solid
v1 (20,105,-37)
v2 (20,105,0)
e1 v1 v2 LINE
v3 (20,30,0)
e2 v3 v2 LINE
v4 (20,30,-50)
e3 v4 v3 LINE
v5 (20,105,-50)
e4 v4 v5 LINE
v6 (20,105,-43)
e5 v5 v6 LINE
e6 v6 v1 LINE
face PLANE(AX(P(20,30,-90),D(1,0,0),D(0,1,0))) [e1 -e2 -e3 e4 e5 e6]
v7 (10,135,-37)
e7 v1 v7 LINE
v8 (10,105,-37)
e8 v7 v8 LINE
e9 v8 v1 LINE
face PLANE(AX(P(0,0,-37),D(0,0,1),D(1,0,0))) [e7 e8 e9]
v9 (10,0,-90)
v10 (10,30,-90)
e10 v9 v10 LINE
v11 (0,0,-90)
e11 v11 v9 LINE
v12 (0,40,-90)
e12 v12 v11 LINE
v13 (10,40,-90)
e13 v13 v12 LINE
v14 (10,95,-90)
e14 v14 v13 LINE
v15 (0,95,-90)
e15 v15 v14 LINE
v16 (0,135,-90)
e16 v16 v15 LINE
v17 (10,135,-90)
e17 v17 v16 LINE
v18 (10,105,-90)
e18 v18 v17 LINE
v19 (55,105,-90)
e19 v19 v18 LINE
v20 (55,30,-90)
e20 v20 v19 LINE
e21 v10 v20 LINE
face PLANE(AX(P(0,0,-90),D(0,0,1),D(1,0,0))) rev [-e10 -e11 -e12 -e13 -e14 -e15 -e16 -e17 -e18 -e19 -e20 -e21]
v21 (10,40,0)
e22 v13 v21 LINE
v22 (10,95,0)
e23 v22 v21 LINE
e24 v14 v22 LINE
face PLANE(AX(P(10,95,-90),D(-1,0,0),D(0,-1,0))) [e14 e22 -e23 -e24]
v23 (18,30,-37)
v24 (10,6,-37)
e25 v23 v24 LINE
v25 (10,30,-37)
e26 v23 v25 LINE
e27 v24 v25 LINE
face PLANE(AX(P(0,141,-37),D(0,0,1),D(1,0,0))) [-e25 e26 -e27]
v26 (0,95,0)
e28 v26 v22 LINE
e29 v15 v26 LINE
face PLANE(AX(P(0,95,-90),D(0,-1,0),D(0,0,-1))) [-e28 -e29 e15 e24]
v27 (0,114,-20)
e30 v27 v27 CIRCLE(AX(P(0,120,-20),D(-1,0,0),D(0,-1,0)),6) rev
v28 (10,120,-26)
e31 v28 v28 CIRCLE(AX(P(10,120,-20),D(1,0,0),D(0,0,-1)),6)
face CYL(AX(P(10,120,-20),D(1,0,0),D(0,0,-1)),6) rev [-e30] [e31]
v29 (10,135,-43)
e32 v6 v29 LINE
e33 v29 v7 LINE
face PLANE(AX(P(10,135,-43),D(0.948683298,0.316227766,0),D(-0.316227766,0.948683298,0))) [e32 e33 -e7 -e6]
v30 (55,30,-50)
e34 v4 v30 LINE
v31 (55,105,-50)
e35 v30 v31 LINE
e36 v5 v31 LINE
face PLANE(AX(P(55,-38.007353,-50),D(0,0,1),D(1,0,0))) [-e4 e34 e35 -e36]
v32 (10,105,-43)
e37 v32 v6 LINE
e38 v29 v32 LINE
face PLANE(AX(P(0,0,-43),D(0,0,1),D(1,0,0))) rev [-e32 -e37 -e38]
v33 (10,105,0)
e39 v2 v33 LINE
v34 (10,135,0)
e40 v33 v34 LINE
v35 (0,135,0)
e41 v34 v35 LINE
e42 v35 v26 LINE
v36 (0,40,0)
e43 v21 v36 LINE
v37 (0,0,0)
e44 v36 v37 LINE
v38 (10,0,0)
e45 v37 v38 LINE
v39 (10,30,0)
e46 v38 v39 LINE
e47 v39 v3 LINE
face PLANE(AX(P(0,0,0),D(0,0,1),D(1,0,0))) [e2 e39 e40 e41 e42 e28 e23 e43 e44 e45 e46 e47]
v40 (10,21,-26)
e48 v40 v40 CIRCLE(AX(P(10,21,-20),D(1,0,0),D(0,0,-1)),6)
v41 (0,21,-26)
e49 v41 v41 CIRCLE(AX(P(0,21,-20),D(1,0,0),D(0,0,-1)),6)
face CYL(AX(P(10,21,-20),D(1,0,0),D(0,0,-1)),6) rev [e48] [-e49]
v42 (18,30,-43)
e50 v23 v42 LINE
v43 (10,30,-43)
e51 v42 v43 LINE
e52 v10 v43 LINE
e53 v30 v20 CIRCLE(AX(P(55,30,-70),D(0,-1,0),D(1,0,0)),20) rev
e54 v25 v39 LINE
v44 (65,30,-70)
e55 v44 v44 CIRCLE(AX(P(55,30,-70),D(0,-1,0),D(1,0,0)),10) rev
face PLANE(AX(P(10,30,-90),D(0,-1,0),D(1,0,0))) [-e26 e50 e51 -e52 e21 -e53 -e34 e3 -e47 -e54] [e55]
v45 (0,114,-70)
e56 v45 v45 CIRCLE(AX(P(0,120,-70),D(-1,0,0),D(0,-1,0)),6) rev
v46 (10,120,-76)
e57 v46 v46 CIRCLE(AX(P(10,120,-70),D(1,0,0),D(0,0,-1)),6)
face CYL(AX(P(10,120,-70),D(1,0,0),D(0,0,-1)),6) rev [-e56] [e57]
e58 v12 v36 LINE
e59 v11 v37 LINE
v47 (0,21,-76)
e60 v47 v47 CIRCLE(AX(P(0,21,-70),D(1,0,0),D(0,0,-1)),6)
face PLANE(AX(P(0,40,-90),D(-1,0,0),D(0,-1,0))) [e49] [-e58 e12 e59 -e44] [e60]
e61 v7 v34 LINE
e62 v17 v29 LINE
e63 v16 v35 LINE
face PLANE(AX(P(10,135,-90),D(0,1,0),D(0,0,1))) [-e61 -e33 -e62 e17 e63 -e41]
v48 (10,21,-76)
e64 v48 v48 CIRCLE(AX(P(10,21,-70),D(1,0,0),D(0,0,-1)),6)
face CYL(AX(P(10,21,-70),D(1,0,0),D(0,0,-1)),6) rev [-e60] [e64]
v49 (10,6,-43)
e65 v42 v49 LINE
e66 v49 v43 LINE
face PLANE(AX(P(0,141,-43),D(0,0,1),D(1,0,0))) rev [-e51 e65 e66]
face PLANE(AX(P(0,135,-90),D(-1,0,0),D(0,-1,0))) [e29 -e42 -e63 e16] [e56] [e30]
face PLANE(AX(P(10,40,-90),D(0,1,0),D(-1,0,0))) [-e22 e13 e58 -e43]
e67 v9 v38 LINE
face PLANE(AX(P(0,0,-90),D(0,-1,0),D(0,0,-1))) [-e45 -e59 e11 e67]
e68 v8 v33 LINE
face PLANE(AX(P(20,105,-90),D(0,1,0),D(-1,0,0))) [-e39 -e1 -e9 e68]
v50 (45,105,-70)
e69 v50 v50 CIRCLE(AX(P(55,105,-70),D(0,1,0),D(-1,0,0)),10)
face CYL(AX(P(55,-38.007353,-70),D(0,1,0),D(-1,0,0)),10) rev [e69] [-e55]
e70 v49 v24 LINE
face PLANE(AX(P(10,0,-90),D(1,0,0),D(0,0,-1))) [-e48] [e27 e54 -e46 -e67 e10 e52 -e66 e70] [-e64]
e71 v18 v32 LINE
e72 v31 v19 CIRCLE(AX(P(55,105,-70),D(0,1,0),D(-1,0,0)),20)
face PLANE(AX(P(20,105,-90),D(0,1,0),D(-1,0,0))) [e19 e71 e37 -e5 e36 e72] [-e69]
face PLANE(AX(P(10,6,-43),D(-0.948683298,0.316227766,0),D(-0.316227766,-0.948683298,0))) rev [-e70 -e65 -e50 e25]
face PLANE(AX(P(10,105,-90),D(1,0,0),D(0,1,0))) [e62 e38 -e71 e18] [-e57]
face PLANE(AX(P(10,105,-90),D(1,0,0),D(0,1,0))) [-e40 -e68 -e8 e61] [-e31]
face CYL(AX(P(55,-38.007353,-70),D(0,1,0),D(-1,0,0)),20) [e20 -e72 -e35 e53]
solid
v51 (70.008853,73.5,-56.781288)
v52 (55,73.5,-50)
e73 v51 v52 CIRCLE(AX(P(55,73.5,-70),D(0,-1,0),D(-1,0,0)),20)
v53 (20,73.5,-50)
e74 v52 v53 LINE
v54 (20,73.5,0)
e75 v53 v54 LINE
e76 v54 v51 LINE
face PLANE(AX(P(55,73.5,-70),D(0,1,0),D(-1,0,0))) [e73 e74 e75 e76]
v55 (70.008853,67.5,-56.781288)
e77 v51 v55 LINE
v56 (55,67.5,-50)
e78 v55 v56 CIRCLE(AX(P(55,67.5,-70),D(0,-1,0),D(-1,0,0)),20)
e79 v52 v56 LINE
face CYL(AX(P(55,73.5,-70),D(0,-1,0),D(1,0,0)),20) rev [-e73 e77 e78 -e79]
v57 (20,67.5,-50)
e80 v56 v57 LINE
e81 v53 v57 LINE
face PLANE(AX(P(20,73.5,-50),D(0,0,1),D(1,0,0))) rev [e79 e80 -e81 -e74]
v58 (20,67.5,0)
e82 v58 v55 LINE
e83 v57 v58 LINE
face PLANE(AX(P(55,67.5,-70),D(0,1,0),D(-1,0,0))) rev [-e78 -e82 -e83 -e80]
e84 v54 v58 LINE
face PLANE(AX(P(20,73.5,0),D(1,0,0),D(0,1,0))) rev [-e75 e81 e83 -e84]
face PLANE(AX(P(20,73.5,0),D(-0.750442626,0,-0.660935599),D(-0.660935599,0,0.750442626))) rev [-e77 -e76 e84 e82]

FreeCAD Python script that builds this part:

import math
import FreeCAD as App
import Part
import Sketcher
from FreeCAD import Vector
Q = App.Units.Quantity


def add_polygon(sketch, points):
    """Adds a closed chain of lines whose ends are joined by coincident constraints."""
    first, n = sketch.GeometryCount, len(points)
    for a, b in zip(points, points[1:] + points[:1]):
        sketch.addGeometry(Part.LineSegment(App.Vector(*a, 0), App.Vector(*b, 0)), False)
    for i in range(n):
        sketch.addConstraint(Sketcher.Constraint("Coincident", first + i, 2, first + (i + 1) % n, 1))

doc = App.newDocument("Part")
body = doc.addObject("PartDesign::Body", "Body")

sketch1 = body.newObject("Sketcher::SketchObject", "Sketch")
sketch1.AttachmentSupport = (doc.getObject("XY_Plane"), [""])
sketch1.MapMode = "FlatFace"
add_polygon(sketch1, [(0, 0), (10, 0), (10, 30), (20, 30), (20, 105), (10, 105), (10, 135), (0, 135), (0, 95), (10, 95), (10, 40), (0, 40)])
sketch1.addConstraint([
    Sketcher.Constraint("Horizontal", 0),
    Sketcher.Constraint("Vertical", 1),
    Sketcher.Constraint("Horizontal", 2),
    Sketcher.Constraint("Vertical", 3),
    Sketcher.Constraint("Horizontal", 4),
    Sketcher.Constraint("Vertical", 5),
    Sketcher.Constraint("Horizontal", 6),
    Sketcher.Constraint("Vertical", 7),
    Sketcher.Constraint("Horizontal", 8),
    Sketcher.Constraint("Vertical", 9),
    Sketcher.Constraint("Horizontal", 10),
    Sketcher.Constraint("Vertical", 11),
    Sketcher.Constraint("Coincident", 11, 2, -1, 1),
    Sketcher.Constraint("PointOnObject", 6, 2, -2),
    Sketcher.Constraint("Vertical", 1, 2, 4, 2),
    Sketcher.Constraint("Vertical", 5, 2, 8, 2),
    Sketcher.Constraint("Equal", 0, 2),
    Sketcher.Constraint("Equal", 1, 5),
    Sketcher.Constraint("Equal", 7, 11),
    Sketcher.Constraint("DistanceX", 0, 1, 0, 2, Q("10 mm")),
    Sketcher.Constraint("DistanceY", 1, 1, 1, 2, Q("30 mm")),
    Sketcher.Constraint("DistanceY", 3, 1, 3, 2, Q("75 mm")),
    Sketcher.Constraint("DistanceY", 7, 2, 7, 1, Q("40 mm")),
])
pad1 = body.newObject("PartDesign::Pad", "Pad")
pad1.Profile = sketch1
pad1.Length = 90
pad1.Reversed = True

sketch2 = body.newObject("Sketcher::SketchObject", "Sketch001")
sketch2.AttachmentSupport = (doc.getObject("XZ_Plane"), [""])
sketch2.MapMode = "FlatFace"
sketch2.AttachmentOffset = App.Placement(Vector(0, 0, -105), App.Rotation())
sketch2.addGeometry([
    Part.LineSegment(Vector(55, -90, 0), Vector(20, -90, 0)),
    Part.LineSegment(Vector(20, -90, 0), Vector(20, -50, 0)),
    Part.LineSegment(Vector(20, -50, 0), Vector(55, -50, 0)),
    Part.ArcOfCircle(Part.Circle(Vector(55, -70, 0), Vector(0, 0, 1), 20), math.radians(-90), math.radians(90)),
    Part.Circle(Vector(55, -70, 0), Vector(0, 0, 1), 10),
], False)
sketch2.addConstraint([
    Sketcher.Constraint("Coincident", 0, 2, 1, 1),
    Sketcher.Constraint("Coincident", 1, 2, 2, 1),
    Sketcher.Constraint("Tangent", 2, 2, 3, 2),
    Sketcher.Constraint("Tangent", 3, 1, 0, 1),
    Sketcher.Constraint("Horizontal", 0),
    Sketcher.Constraint("Vertical", 1),
    Sketcher.Constraint("Horizontal", 2),
    Sketcher.Constraint("Coincident", 4, 3, 3, 3),
    Sketcher.Constraint("Diameter", 4, Q("20 mm")),
    Sketcher.Constraint("Radius", 3, Q("20 mm")),
    Sketcher.Constraint("DistanceX", 0, 2, 0, 1, Q("35 mm")),
    Sketcher.Constraint("DistanceX", -1, 1, 3, 3, Q("55 mm")),
    Sketcher.Constraint("DistanceY", 3, 3, -1, 1, Q("70 mm")),
])
pad2 = body.newObject("PartDesign::Pad", "Pad001")
pad2.Profile = sketch2
pad2.Length = 75

sketch3 = body.newObject("Sketcher::SketchObject", "Sketch002")
sketch3.AttachmentSupport = (doc.getObject("XY_Plane"), [""])
sketch3.MapMode = "FlatFace"
sketch3.AttachmentOffset = App.Placement(Vector(0, 0, -37), App.Rotation())
add_polygon(sketch3, [(20, 105), (10, 135), (10, 105)])
sketch3.addConstraint([
    Sketcher.Constraint("Vertical", 1),
    Sketcher.Constraint("Horizontal", 2),
    Sketcher.Constraint("DistanceX", 2, 1, 2, 2, Q("10 mm")),
    Sketcher.Constraint("DistanceY", 1, 2, 1, 1, Q("30 mm")),
    Sketcher.Constraint("DistanceX", -1, 1, 0, 2, Q("10 mm")),
    Sketcher.Constraint("DistanceY", -1, 1, 0, 2, Q("135 mm")),
])
pad3 = body.newObject("PartDesign::Pad", "Pad002")
pad3.Profile = sketch3
pad3.Length = 6
pad3.Reversed = True
doc.recompute()

datumplane = body.newObject("PartDesign::Plane", "DatumPlane")
datumplane.AttachmentSupport = (doc.getObject("XZ_Plane"), [""])
datumplane.MapMode = "FlatFace"
datumplane.AttachmentOffset = App.Placement(Vector(0, 0, -70.5), App.Rotation())
mirrored = body.newObject("PartDesign::Mirrored", "Mirrored")
mirrored.Originals = [pad3]
mirrored.MirrorPlane = (datumplane, [""])
body.Tip = mirrored

sketch4 = body.newObject("Sketcher::SketchObject", "Sketch003")
sketch4.AttachmentSupport = (doc.getObject("XZ_Plane"), [""])
sketch4.MapMode = "FlatFace"
sketch4.AttachmentOffset = App.Placement(Vector(0, 0, -120), App.Rotation())
add_polygon(sketch4, [(-4, -20), (10, -20), (10, -26), (0, -26)])
sketch4.addGeometry(Part.LineSegment(Vector(10, -20, 0), Vector(-4, -20, 0)), True)
sketch4.addConstraint([
    Sketcher.Constraint("Horizontal", 0),
    Sketcher.Constraint("Vertical", 1),
    Sketcher.Constraint("Horizontal", 2),
    Sketcher.Constraint("Horizontal", 4),
    Sketcher.Constraint("Coincident", 4, 1, 0, 2),
    Sketcher.Constraint("PointOnObject", 2, 2, -2),
    Sketcher.Constraint("Equal", 0, 4),
    Sketcher.Constraint("DistanceX", 2, 2, 2, 1, Q("10 mm")),
    Sketcher.Constraint("DistanceY", 1, 2, 1, 1, Q("6 mm")),
    Sketcher.Constraint("Angle", 3, Q("121 deg")),
    Sketcher.Constraint("DistanceY", 0, 2, -1, 1, Q("20 mm")),
])
groove = body.newObject("PartDesign::Groove", "Groove")
groove.Profile = sketch4
groove.ReferenceAxis = (sketch4, ["Axis0"])
groove.Angle = 360
doc.recompute()

linearpattern = body.newObject("PartDesign::LinearPattern", "LinearPattern")
linearpattern.Originals = [groove]
linearpattern.Direction = (doc.getObject("Z_Axis"), [""])
linearpattern.Mode = "offset"
linearpattern.Offset = 50
linearpattern.Occurrences = 2
linearpattern.Reversed = True
body.Tip = linearpattern
doc.recompute()

datumplane2 = body.newObject("PartDesign::Plane", "DatumPlane001")
datumplane2.AttachmentSupport = (doc.getObject("XZ_Plane"), [""])
datumplane2.MapMode = "FlatFace"
datumplane2.AttachmentOffset = App.Placement(Vector(0, 0, -70.5), App.Rotation())
mirrored2 = body.newObject("PartDesign::Mirrored", "Mirrored001")
mirrored2.Originals = [groove]
mirrored2.MirrorPlane = (datumplane2, [""])
body.Tip = mirrored2

sketch5 = body.newObject("Sketcher::SketchObject", "Sketch004")
sketch5.AttachmentSupport = (doc.getObject("XZ_Plane"), [""])
sketch5.MapMode = "FlatFace"
sketch5.AttachmentOffset = App.Placement(Vector(0, 0, -21), App.Rotation())
add_polygon(sketch5, [(10, -70), (-4, -70), (0, -76), (10, -76)])
sketch5.addGeometry(Part.LineSegment(Vector(-4, -70, 0), Vector(10, -70, 0)), True)
sketch5.addConstraint([
    Sketcher.Constraint("Horizontal", 0),
    Sketcher.Constraint("Horizontal", 2),
    Sketcher.Constraint("Vertical", 3),
    Sketcher.Constraint("Horizontal", 4),
    Sketcher.Constraint("Coincident", 4, 1, 0, 2),
    Sketcher.Constraint("PointOnObject", 1, 2, -2),
    Sketcher.Constraint("Vertical", 2, 2, 4, 2),
    Sketcher.Constraint("DistanceX", 2, 1, 2, 2, Q("10 mm")),
    Sketcher.Constraint("DistanceY", 3, 1, 3, 2, Q("6 mm")),
    Sketcher.Constraint("Angle", 1, Q("-59 deg")),
    Sketcher.Constraint("DistanceY", 0, 2, -1, 1, Q("70 mm")),
])
groove2 = body.newObject("PartDesign::Groove", "Groove001")
groove2.Profile = sketch5
groove2.ReferenceAxis = (sketch5, ["Axis0"])
groove2.Angle = 360
body2 = doc.addObject("PartDesign::Body", "Body001")

sketch6 = body2.newObject("Sketcher::SketchObject", "Sketch005")
sketch6.AttachmentSupport = (doc.getObject("XZ_Plane001"), [""])
sketch6.MapMode = "FlatFace"
sketch6.AttachmentOffset = App.Placement(Vector(0, 0, -67.5), App.Rotation())
sketch6.addGeometry([
    Part.LineSegment(Vector(20, 0, 0), Vector(70, -57, 0)),
    Part.ArcOfCircle(Part.Circle(Vector(55, -70, 0), Vector(0, 0, 1), 20), math.radians(41), math.radians(90)),
    Part.LineSegment(Vector(55, -50, 0), Vector(20, -50, 0)),
    Part.LineSegment(Vector(20, -50, 0), Vector(20, 0, 0)),
], False)
sketch6.addConstraint([
    Sketcher.Constraint("Tangent", 0, 2, 1, 1),
    Sketcher.Constraint("Tangent", 1, 2, 2, 1),
    Sketcher.Constraint("Coincident", 2, 2, 3, 1),
    Sketcher.Constraint("Coincident", 3, 2, 0, 1),
    Sketcher.Constraint("Horizontal", 2),
    Sketcher.Constraint("Vertical", 3),
    Sketcher.Constraint("PointOnObject", 3, 2, -1),
    Sketcher.Constraint("Radius", 1, Q("20 mm")),
    Sketcher.Constraint("DistanceX", 2, 2, 2, 1, Q("35 mm")),
    Sketcher.Constraint("DistanceY", 3, 1, 3, 2, Q("50 mm")),
    Sketcher.Constraint("DistanceX", -1, 1, 1, 3, Q("55 mm")),
])
pad4 = body2.newObject("PartDesign::Pad", "Pad003")
pad4.Profile = sketch6
pad4.Length = 6
pad4.Reversed = True

doc.recompute()
